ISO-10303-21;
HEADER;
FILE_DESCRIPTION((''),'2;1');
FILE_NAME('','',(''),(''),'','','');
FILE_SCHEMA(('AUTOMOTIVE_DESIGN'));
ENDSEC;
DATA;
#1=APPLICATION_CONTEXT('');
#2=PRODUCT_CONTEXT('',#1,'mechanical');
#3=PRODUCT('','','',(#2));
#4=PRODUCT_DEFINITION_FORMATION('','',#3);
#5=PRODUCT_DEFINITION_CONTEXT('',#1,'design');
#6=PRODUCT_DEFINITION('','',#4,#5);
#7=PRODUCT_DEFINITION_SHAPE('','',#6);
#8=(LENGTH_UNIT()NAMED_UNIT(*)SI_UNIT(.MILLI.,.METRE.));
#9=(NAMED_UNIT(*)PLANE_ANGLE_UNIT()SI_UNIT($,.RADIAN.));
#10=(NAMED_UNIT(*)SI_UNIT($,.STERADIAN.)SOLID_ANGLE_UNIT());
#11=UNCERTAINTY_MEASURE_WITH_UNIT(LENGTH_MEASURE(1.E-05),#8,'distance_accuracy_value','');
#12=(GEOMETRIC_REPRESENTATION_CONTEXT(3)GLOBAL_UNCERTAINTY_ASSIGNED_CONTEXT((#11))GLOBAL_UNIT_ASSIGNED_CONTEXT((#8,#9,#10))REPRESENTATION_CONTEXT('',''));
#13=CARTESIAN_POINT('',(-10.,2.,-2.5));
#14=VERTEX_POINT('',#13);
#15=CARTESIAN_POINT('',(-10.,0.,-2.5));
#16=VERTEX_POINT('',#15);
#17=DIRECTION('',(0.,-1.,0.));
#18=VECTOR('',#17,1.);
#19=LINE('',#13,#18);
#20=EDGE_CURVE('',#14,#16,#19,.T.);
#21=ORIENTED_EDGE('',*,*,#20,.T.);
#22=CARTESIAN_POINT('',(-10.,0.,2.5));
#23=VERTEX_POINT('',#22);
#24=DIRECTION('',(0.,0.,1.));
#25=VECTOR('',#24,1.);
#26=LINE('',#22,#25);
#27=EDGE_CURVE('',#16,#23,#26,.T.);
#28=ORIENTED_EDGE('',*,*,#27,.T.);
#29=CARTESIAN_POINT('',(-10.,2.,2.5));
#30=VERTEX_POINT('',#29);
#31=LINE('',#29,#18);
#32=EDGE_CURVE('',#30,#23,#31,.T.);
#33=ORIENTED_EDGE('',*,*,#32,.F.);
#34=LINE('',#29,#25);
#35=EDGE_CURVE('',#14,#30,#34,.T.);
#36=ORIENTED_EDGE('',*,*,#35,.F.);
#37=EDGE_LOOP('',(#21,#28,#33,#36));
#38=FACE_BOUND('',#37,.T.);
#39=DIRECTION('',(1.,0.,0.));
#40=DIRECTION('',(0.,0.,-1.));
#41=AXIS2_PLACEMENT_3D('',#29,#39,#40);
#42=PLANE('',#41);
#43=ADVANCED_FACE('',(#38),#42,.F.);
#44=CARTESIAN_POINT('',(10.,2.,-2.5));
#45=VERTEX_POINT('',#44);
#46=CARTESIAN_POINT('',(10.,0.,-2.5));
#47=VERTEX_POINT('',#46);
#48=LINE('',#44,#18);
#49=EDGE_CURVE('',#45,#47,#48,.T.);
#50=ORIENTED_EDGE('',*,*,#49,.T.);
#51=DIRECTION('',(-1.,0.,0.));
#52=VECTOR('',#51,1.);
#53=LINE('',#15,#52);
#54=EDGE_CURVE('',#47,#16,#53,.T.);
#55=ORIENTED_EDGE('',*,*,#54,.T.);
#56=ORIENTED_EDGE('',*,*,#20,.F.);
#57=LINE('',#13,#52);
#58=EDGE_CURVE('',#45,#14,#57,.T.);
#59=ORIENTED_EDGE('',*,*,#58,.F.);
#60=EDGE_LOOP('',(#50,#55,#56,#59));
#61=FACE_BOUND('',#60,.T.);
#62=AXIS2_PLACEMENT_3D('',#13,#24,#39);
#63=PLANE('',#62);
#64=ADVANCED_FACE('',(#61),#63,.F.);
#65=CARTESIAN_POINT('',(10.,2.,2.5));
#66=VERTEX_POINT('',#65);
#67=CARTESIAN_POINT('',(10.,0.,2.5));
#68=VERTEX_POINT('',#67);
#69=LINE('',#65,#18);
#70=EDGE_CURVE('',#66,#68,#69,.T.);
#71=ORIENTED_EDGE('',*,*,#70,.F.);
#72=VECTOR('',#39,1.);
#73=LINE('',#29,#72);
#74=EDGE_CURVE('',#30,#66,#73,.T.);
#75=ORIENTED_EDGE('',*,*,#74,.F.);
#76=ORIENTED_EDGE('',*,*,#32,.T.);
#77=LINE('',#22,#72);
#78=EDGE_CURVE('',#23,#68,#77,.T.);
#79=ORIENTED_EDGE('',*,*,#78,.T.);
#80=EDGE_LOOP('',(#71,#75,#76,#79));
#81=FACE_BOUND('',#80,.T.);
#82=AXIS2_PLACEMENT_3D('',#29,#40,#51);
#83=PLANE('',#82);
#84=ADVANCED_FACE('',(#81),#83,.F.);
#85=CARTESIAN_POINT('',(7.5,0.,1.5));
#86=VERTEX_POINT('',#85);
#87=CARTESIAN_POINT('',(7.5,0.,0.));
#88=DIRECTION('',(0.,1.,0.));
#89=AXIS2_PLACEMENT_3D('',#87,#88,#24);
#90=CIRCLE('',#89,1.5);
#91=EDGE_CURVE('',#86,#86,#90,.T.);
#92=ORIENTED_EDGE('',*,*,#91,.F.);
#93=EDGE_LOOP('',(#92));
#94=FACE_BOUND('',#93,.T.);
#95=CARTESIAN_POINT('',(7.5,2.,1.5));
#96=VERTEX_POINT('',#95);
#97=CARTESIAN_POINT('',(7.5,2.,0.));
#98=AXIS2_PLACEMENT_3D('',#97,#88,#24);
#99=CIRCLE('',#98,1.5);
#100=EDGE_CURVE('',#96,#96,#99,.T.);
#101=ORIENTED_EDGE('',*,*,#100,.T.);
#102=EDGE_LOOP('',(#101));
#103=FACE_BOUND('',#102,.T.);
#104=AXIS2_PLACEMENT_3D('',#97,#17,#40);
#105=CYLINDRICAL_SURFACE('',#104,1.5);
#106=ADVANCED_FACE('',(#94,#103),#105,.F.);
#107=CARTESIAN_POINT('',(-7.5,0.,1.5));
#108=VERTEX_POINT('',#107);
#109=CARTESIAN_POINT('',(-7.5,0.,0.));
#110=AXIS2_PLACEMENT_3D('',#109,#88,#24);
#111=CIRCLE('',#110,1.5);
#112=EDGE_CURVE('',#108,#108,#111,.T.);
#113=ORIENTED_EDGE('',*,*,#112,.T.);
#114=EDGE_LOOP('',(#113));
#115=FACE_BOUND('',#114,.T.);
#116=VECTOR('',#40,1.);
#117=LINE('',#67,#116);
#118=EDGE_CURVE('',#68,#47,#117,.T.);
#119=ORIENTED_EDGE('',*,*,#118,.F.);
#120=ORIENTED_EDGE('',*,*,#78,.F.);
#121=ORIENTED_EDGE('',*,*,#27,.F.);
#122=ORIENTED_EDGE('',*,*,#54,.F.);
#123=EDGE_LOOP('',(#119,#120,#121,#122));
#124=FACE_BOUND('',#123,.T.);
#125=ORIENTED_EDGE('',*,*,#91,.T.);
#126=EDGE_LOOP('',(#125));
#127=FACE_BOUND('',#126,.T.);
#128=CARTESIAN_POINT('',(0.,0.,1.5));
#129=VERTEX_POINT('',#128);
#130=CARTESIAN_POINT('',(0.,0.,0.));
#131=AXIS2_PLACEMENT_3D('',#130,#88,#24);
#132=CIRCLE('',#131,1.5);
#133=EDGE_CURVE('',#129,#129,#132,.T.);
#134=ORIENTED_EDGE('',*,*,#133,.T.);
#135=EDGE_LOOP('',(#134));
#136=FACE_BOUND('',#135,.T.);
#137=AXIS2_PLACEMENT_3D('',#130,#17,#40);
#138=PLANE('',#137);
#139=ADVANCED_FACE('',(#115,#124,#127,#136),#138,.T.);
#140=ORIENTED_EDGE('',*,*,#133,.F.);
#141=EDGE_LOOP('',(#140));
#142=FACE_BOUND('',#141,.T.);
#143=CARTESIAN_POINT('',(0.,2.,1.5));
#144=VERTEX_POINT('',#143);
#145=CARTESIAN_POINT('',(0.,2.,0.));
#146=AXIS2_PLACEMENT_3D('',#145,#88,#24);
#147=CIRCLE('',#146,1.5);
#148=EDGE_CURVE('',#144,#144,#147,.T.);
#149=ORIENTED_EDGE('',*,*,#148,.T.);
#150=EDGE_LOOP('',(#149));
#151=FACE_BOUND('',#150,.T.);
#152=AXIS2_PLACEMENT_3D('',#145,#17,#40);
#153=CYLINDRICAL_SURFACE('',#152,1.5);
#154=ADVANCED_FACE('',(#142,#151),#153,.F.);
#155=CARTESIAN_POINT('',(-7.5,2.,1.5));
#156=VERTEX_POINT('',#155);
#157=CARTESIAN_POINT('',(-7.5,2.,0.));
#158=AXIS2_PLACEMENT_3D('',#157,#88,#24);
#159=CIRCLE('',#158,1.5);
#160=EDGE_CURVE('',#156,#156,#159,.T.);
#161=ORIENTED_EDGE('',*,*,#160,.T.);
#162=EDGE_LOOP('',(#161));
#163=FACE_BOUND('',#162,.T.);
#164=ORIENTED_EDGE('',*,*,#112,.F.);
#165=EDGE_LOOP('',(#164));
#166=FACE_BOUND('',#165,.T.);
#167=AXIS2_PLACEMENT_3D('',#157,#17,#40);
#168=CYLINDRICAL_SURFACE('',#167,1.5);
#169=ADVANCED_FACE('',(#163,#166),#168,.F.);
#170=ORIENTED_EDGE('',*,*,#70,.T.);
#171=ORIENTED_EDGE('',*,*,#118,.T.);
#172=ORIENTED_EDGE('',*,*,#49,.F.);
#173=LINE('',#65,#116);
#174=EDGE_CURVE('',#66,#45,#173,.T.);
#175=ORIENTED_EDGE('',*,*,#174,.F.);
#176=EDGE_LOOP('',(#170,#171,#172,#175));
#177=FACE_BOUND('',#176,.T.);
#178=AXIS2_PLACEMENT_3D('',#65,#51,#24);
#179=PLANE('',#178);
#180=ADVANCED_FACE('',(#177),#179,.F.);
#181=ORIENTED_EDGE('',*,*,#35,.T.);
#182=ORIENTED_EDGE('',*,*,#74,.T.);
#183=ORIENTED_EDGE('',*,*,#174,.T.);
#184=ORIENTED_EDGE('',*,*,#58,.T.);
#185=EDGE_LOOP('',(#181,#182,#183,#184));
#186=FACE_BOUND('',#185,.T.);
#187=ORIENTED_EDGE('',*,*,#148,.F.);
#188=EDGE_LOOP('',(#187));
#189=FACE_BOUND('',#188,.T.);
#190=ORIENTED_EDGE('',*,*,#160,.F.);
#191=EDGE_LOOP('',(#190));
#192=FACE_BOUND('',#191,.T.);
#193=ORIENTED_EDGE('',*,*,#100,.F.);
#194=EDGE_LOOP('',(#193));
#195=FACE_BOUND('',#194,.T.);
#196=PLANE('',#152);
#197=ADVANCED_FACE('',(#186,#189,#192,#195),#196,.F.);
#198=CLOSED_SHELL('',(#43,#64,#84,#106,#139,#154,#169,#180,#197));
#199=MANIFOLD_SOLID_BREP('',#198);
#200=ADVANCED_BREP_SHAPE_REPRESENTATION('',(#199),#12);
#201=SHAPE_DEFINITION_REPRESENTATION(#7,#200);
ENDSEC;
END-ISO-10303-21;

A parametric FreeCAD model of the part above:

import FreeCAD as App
import Part
import Sketcher


def add_polygon(sketch, points):
    """Adds a closed chain of lines whose ends are joined by coincident constraints."""
    first, n = sketch.GeometryCount, len(points)
    for a, b in zip(points, points[1:] + points[:1]):
        sketch.addGeometry(Part.LineSegment(App.Vector(*a, 0), App.Vector(*b, 0)), False)
    for i in range(n):
        sketch.addConstraint(Sketcher.Constraint("Coincident", first + i, 2, first + (i + 1) % n, 1))

doc = App.newDocument("Part")
params = doc.addObject("Spreadsheet::Sheet", "Params")
for row, (alias, value) in enumerate([
    ("sketch1_diameter", "3 mm"),
    ("sketch1_width", "20 mm"),
    ("sketch1_height", "5 mm"),
    ("pad1_length", "2 mm"),
], start=1):
    params.set(f"A{row}", alias)
    params.set(f"B{row}", "=" + value)
    params.setAlias(f"B{row}", alias)

body = doc.addObject("PartDesign::Body", "Body")

# Sketch on XZ plane
sketch1 = body.newObject("Sketcher::SketchObject", "Sketch")
sketch1.AttachmentSupport = (doc.getObject("XZ_Plane"), [""])
sketch1.MapMode = "FlatFace"
add_polygon(sketch1, [(-10, -2.5), (-10, 2.5), (10, 2.5), (10, -2.5)])  # lines 0-3
sketch1.addGeometry(Part.Circle(App.Vector(-7.5, 0, 0), App.Vector(0, 0, 1), 1.5), False)  # 4
sketch1.addGeometry(Part.Circle(App.Vector(0, 0, 0), App.Vector(0, 0, 1), 1.5), False)  # 5
sketch1.addGeometry(Part.Circle(App.Vector(7.5, 0, 0), App.Vector(0, 0, 1), 1.5), False)  # 6
sketch1.addConstraint(Sketcher.Constraint("Vertical", 0))
sketch1.addConstraint(Sketcher.Constraint("Horizontal", 1))
sketch1.addConstraint(Sketcher.Constraint("Vertical", 2))
sketch1.addConstraint(Sketcher.Constraint("Horizontal", 3))
sketch1.addConstraint(Sketcher.Constraint("Coincident", 5, 3, -1, 1))
sketch1.addConstraint(Sketcher.Constraint("Equal", 4, 5))
sketch1.addConstraint(Sketcher.Constraint("Equal", 5, 6))
sketch1.addConstraint(Sketcher.Constraint("Symmetric", 4, 3, 6, 3, -1, 1))
sketch1.addConstraint(Sketcher.Constraint("Symmetric", 0, 2, 2, 2, -1, 1))
sketch1.addConstraint(Sketcher.Constraint("PointOnObject", 4, 3, -1))
sketch1.addConstraint(Sketcher.Constraint("Diameter", 4, 3.0))
sketch1.addConstraint(Sketcher.Constraint("DistanceX", 1, 1, 1, 2, 20.0))
sketch1.addConstraint(Sketcher.Constraint("DistanceY", 0, 1, 0, 2, 5.0))
sketch1.addConstraint(Sketcher.Constraint("DistanceX", 4, 3, 6, 3, 15.0))
sketch1.setExpression("Constraints[14]", "Params.sketch1_diameter")
sketch1.setExpression("Constraints[15]", "Params.sketch1_width")
sketch1.setExpression("Constraints[16]", "Params.sketch1_height")
pad1 = body.newObject("PartDesign::Pad", "Pad")
pad1.Profile = sketch1
pad1.setExpression("Length", "Params.pad1_length")
pad1.Reversed = True

doc.recompute()
